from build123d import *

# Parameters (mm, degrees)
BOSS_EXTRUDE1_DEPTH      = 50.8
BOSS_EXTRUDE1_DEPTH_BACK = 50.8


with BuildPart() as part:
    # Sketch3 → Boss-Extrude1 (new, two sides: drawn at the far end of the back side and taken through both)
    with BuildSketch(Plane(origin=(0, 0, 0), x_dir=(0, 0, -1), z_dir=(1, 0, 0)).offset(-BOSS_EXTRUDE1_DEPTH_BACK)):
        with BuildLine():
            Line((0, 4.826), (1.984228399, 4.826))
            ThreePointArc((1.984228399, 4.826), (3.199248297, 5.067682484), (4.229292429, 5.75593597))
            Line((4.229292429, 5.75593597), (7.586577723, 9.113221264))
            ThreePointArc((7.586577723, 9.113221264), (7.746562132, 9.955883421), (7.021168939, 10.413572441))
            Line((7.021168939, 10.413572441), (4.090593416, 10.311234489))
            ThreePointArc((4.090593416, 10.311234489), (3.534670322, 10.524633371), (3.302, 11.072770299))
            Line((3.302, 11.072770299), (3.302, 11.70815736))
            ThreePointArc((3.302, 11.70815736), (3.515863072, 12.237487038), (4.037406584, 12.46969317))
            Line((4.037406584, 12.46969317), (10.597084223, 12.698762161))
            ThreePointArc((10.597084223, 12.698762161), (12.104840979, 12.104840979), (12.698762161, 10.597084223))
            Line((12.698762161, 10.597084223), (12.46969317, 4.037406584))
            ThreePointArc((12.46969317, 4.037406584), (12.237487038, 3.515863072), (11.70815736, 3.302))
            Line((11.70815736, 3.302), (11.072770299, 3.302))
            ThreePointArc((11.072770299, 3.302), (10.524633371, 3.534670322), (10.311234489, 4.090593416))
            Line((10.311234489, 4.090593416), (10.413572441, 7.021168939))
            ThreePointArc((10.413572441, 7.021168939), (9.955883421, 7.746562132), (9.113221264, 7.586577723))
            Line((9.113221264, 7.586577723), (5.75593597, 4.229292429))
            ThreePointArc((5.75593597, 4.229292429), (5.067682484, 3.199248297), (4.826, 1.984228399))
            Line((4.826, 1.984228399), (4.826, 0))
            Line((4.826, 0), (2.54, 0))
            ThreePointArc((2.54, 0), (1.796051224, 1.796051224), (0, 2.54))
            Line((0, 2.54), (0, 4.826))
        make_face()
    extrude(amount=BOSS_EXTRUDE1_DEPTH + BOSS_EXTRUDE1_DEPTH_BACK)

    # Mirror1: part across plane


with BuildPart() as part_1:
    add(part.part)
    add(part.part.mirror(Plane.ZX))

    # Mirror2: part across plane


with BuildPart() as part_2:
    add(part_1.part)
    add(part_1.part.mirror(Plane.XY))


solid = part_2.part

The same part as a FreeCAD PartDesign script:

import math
import FreeCAD as App
import Part
import Sketcher
Q = App.Units.Quantity

doc = App.newDocument("Part")
body = doc.addObject("PartDesign::Body", "Body")

sketch1 = body.newObject("Sketcher::SketchObject", "Sketch")
sketch1.AttachmentSupport = (doc.getObject("YZ_Plane"), [""])
sketch1.MapMode = "FlatFace"
sketch1.addGeometry(Part.LineSegment(App.Vector(4.8, -2, 0), App.Vector(4.8, 0, 0)), False)
sketch1.addGeometry(Part.LineSegment(App.Vector(4.8, 0, 0), App.Vector(2.5, 0, 0)), False)
sketch1.addGeometry(Part.ArcOfCircle(Part.Circle(App.Vector(0, 0, 0), App.Vector(0, 0, 1), 2.5), math.radians(-90), math.radians(0)), False)
sketch1.addGeometry(Part.LineSegment(App.Vector(0, -2.5, 0), App.Vector(0, -4.8, 0)), False)
sketch1.addGeometry(Part.LineSegment(App.Vector(0, -4.8, 0), App.Vector(2, -4.8, 0)), False)
sketch1.addGeometry(Part.ArcOfCircle(Part.Circle(App.Vector(2, -8, 0), App.Vector(0, 0, 1), 3.2), math.radians(45), math.radians(90)), False)
sketch1.addGeometry(Part.LineSegment(App.Vector(4.2, -5.8, 0), App.Vector(7.6, -9.1, 0)), False)
sketch1.addGeometry(Part.ArcOfCircle(Part.Circle(App.Vector(7, -9.7, 0), App.Vector(0, 0, 1), 0.8), math.radians(-92), math.radians(45)), False)
sketch1.addGeometry(Part.LineSegment(App.Vector(7, -10.4, 0), App.Vector(4.1, -10.3, 0)), False)
sketch1.addGeometry(Part.ArcOfCircle(Part.Circle(App.Vector(4.1, -11.1, 0), App.Vector(0, 0, 1), 0.8), math.radians(88), math.radians(180)), False)
sketch1.addGeometry(Part.LineSegment(App.Vector(3.3, -11.1, 0), App.Vector(3.3, -11.7, 0)), False)
sketch1.addGeometry(Part.ArcOfCircle(Part.Circle(App.Vector(4.1, -11.7, 0), App.Vector(0, 0, 1), 0.8), math.radians(180), math.radians(268)), False)
sketch1.addGeometry(Part.LineSegment(App.Vector(4, -12.5, 0), App.Vector(10.6, -12.7, 0)), False)
sketch1.addGeometry(Part.ArcOfCircle(Part.Circle(App.Vector(10.7, -10.7, 0), App.Vector(0, 0, 1), 2), math.radians(-92), math.radians(2)), False)
sketch1.addGeometry(Part.LineSegment(App.Vector(12.7, -10.6, 0), App.Vector(12.5, -4, 0)), False)
sketch1.addGeometry(Part.ArcOfCircle(Part.Circle(App.Vector(11.7, -4.1, 0), App.Vector(0, 0, 1), 0.8), math.radians(2), math.radians(90)), False)
sketch1.addGeometry(Part.LineSegment(App.Vector(11.7, -3.3, 0), App.Vector(11.1, -3.3, 0)), False)
sketch1.addGeometry(Part.ArcOfCircle(Part.Circle(App.Vector(11.1, -4.1, 0), App.Vector(0, 0, 1), 0.8), math.radians(90), math.radians(182)), False)
sketch1.addGeometry(Part.LineSegment(App.Vector(10.3, -4.1, 0), App.Vector(10.4, -7, 0)), False)
sketch1.addGeometry(Part.ArcOfCircle(Part.Circle(App.Vector(9.7, -7, 0), App.Vector(0, 0, 1), 0.8), math.radians(-135), math.radians(2)), False)
sketch1.addGeometry(Part.LineSegment(App.Vector(9.1, -7.6, 0), App.Vector(5.8, -4.2, 0)), False)
sketch1.addGeometry(Part.ArcOfCircle(Part.Circle(App.Vector(8, -2, 0), App.Vector(0, 0, 1), 3.2), math.radians(180), math.radians(225)), False)
sketch1.addConstraint(Sketcher.Constraint("Coincident", 0, 2, 1, 1))
sketch1.addConstraint(Sketcher.Constraint("Coincident", 1, 2, 2, 2))
sketch1.addConstraint(Sketcher.Constraint("Coincident", 2, 1, 3, 1))
sketch1.addConstraint(Sketcher.Constraint("Coincident", 3, 2, 4, 1))
sketch1.addConstraint(Sketcher.Constraint("Tangent", 4, 2, 5, 2))
sketch1.addConstraint(Sketcher.Constraint("Tangent", 5, 1, 6, 1))
sketch1.addConstraint(Sketcher.Constraint("Tangent", 6, 2, 7, 2))
sketch1.addConstraint(Sketcher.Constraint("Tangent", 7, 1, 8, 1))
sketch1.addConstraint(Sketcher.Constraint("Tangent", 8, 2, 9, 1))
sketch1.addConstraint(Sketcher.Constraint("Tangent", 9, 2, 10, 1))
sketch1.addConstraint(Sketcher.Constraint("Tangent", 10, 2, 11, 1))
sketch1.addConstraint(Sketcher.Constraint("Tangent", 11, 2, 12, 1))
sketch1.addConstraint(Sketcher.Constraint("Tangent", 12, 2, 13, 1))
sketch1.addConstraint(Sketcher.Constraint("Tangent", 13, 2, 14, 1))
sketch1.addConstraint(Sketcher.Constraint("Tangent", 14, 2, 15, 1))
sketch1.addConstraint(Sketcher.Constraint("Tangent", 15, 2, 16, 1))
sketch1.addConstraint(Sketcher.Constraint("Tangent", 16, 2, 17, 1))
sketch1.addConstraint(Sketcher.Constraint("Tangent", 17, 2, 18, 1))
sketch1.addConstraint(Sketcher.Constraint("Tangent", 18, 2, 19, 2))
sketch1.addConstraint(Sketcher.Constraint("Tangent", 19, 1, 20, 1))
sketch1.addConstraint(Sketcher.Constraint("Tangent", 20, 2, 21, 2))
sketch1.addConstraint(Sketcher.Constraint("Tangent", 21, 1, 0, 1))
sketch1.addConstraint(Sketcher.Constraint("Vertical", 0))
sketch1.addConstraint(Sketcher.Constraint("Horizontal", 1))
sketch1.addConstraint(Sketcher.Constraint("Vertical", 3))
sketch1.addConstraint(Sketcher.Constraint("Horizontal", 4))
sketch1.addConstraint(Sketcher.Constraint("Vertical", 10))
sketch1.addConstraint(Sketcher.Constraint("Horizontal", 16))
sketch1.addConstraint(Sketcher.Constraint("Coincident", 2, 3, -1, 1))
sketch1.addConstraint(Sketcher.Constraint("Equal", 7, 9))
sketch1.addConstraint(Sketcher.Constraint("Equal", 9, 11))
sketch1.addConstraint(Sketcher.Constraint("Equal", 11, 15))
sketch1.addConstraint(Sketcher.Constraint("Equal", 15, 17))
sketch1.addConstraint(Sketcher.Constraint("Equal", 17, 19))
sketch1.addConstraint(Sketcher.Constraint("Equal", 5, 21))
sketch1.addConstraint(Sketcher.Constraint("PointOnObject", 0, 2, -1))
sketch1.addConstraint(Sketcher.Constraint("PointOnObject", 2, 1, -2))
sketch1.addConstraint(Sketcher.Constraint("Parallel", 8, 12))
sketch1.addConstraint(Sketcher.Constraint("Parallel", 14, 18))
sketch1.addConstraint(Sketcher.Constraint("Parallel", 6, 20))
sketch1.addConstraint(Sketcher.Constraint("Equal", 4, 0))
sketch1.addConstraint(Sketcher.Constraint("Equal", 1, 3))
sketch1.addConstraint(Sketcher.Constraint("Equal", 16, 10))
sketch1.addConstraint(Sketcher.Constraint("Equal", 12, 14))
sketch1.addConstraint(Sketcher.Constraint("Equal", 8, 18))
sketch1.addConstraint(Sketcher.Constraint("Equal", 6, 20))
sketch1.addConstraint(Sketcher.Constraint("Radius", 2, Q("0.1 in")))
sketch1.addConstraint(Sketcher.Constraint("Radius", 7, Q("0.03 in")))
sketch1.addConstraint(Sketcher.Constraint("Radius", 13, Q("0.08 in")))
sketch1.addConstraint(Sketcher.Constraint("Angle", 6, Q("-45 deg")))
sketch1.addConstraint(Sketcher.Constraint("Angle", 8, Q("178 deg")))
sketch1.addConstraint(Sketcher.Constraint("Radius", 5, Q("0.125 in")))
sketch1.addConstraint(Sketcher.Constraint("DistanceX", 1, 2, 1, 1, Q("0.09 in")))
sketch1.addConstraint(Sketcher.Constraint("DistanceX", -1, 1, 9, 3, Q("0.16 in")))
sketch1.addConstraint(Sketcher.Constraint("DistanceX", -1, 1, 13, 3, Q("0.42 in")))
sketch1.addConstraint(Sketcher.Constraint("DistanceX", 4, 1, 4, 2, 1.984228))
sketch1.addConstraint(Sketcher.Constraint("DistanceY", 7, 3, 5, 1, 3.896101))
pad1 = body.newObject("PartDesign::Pad", "Pad")
pad1.Profile = sketch1
pad1.Type = "TwoLengths"
pad1.Length = Q("2 in")
pad1.Length2 = Q("2 in")
body2 = doc.addObject("PartDesign::Body", "Body001")
doc.recompute()

body2.BaseFeature = body
doc.recompute()

mirroring = doc.addObject("Part::Mirroring", "Mirroring")
mirroring.Source = body
mirroring.Base = App.Vector(0, 0, 0)
mirroring.Normal = App.Vector(0, 1, 0)
body3 = doc.addObject("PartDesign::Body", "Body002")
body3.BaseFeature = mirroring
boolean = body2.newObject("PartDesign::Boolean", "Boolean")
boolean.Type = "Fuse"
boolean.addObjects([body3])
doc.recompute()
body4 = doc.addObject("PartDesign::Body", "Body003")
doc.recompute()

body4.BaseFeature = body2
doc.recompute()

mirroring2 = doc.addObject("Part::Mirroring", "Mirroring001")
mirroring2.Source = body2
mirroring2.Base = App.Vector(0, 0, 0)
mirroring2.Normal = App.Vector(0, 0, 1)
body5 = doc.addObject("PartDesign::Body", "Body004")
body5.BaseFeature = mirroring2
boolean2 = body4.newObject("PartDesign::Boolean", "Boolean001")
boolean2.Type = "Fuse"
boolean2.addObjects([body5])
doc.recompute()
mirroring.Visibility = False
mirroring2.Visibility = False

doc.recompute()
